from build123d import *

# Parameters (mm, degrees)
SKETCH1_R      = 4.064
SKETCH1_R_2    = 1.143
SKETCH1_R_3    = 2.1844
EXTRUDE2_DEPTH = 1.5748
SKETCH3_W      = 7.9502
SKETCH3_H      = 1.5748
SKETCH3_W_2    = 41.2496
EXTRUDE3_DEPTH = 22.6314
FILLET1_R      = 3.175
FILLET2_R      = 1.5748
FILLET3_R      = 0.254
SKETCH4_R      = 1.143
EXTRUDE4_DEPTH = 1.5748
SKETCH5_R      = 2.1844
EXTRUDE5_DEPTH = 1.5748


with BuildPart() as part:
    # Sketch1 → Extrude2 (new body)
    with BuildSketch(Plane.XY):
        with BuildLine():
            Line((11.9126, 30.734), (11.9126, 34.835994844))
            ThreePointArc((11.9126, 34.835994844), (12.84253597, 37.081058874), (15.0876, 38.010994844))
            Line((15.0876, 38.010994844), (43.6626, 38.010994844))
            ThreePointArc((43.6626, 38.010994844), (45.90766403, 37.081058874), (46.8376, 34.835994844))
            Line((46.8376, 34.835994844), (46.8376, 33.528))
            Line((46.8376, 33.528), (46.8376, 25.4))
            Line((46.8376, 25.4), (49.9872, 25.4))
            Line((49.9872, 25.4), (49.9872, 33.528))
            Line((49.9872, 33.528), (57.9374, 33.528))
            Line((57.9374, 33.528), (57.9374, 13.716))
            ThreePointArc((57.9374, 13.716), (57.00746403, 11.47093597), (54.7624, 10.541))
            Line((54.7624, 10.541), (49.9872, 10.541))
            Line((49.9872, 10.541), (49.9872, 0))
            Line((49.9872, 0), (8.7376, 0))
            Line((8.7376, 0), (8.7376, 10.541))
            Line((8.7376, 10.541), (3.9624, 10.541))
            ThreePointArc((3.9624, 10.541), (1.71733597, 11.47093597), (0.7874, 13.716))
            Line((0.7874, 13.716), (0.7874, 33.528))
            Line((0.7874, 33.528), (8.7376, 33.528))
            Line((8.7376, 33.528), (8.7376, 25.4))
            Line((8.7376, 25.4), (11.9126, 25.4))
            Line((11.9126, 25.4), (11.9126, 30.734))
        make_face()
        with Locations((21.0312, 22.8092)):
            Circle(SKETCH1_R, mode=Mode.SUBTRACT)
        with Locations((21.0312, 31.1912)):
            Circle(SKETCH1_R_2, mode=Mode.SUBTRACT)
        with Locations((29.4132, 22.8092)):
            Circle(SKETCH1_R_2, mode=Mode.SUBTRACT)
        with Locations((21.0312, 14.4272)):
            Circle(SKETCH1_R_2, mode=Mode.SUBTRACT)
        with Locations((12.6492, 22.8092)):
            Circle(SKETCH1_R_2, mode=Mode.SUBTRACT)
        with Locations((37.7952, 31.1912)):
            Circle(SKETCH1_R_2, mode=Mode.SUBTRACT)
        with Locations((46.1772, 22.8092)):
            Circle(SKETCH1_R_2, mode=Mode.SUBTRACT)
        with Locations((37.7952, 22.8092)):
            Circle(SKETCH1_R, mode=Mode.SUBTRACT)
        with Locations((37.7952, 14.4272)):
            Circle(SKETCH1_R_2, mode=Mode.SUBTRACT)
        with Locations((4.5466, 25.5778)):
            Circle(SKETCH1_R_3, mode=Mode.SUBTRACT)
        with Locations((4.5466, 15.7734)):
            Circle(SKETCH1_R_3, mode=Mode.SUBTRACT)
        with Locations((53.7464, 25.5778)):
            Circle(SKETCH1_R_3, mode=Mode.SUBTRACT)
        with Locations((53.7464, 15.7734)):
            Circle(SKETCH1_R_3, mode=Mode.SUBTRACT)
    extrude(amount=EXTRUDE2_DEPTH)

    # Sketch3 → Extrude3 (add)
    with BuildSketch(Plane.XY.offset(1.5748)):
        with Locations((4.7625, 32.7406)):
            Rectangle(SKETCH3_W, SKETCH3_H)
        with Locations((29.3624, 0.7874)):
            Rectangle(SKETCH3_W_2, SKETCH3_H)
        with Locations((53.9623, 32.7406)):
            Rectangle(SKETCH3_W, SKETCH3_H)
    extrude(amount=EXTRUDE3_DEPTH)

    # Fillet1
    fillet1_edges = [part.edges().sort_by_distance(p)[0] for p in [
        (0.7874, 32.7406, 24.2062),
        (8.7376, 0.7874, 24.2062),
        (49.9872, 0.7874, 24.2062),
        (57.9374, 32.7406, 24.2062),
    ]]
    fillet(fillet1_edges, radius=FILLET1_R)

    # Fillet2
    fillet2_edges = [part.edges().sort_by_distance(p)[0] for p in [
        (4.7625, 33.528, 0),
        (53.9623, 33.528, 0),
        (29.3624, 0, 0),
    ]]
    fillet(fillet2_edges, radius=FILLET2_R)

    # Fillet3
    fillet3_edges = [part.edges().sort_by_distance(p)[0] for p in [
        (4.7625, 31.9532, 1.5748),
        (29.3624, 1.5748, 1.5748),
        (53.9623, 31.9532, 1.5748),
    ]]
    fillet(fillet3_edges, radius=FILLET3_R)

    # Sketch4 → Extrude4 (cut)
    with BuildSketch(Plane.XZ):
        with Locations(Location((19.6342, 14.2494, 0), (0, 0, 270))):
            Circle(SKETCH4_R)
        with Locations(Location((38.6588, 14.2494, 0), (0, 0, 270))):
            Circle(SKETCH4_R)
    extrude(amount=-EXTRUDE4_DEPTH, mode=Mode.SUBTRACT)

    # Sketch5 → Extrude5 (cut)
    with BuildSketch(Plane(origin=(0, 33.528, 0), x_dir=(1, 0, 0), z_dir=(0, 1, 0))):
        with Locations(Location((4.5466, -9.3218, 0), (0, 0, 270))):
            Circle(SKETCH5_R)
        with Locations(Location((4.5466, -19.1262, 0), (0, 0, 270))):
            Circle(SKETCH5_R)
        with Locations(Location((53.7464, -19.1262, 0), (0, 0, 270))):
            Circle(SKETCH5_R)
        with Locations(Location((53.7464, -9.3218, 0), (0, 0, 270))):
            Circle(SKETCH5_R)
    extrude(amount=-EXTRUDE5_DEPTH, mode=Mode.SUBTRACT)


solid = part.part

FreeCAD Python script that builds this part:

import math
import FreeCAD as App
import Part
import Sketcher
Q = App.Units.Quantity


def edges_at(feature, points):
    """Names of the edges that pass closest to the given points."""
    edges = feature.Shape.Edges
    near = lambda p: min(range(len(edges)), key=lambda i: edges[i].distToShape(Part.Vertex(*p))[0])
    return sorted({f"Edge{near(p) + 1}" for p in points})

doc = App.newDocument("Part")
body = doc.addObject("PartDesign::Body", "Body")

sketch1 = body.newObject("Sketcher::SketchObject", "Sketch")
sketch1.AttachmentSupport = (doc.getObject("XY_Plane"), [""])
sketch1.MapMode = "FlatFace"
sketch1.addGeometry([
    Part.ArcOfCircle(Part.Circle(App.Vector(15.0876, 34.835995, 0), App.Vector(0, 0, 1), 3.175), math.radians(90), math.radians(180)),
    Part.LineSegment(App.Vector(11.9126, 34.835995, 0), App.Vector(11.9126, 25.4, 0)),
    Part.LineSegment(App.Vector(11.9126, 25.4, 0), App.Vector(8.7376, 25.4, 0)),
    Part.LineSegment(App.Vector(8.7376, 25.4, 0), App.Vector(8.7376, 33.528, 0)),
    Part.LineSegment(App.Vector(8.7376, 33.528, 0), App.Vector(0.7874, 33.528, 0)),
    Part.LineSegment(App.Vector(0.7874, 33.528, 0), App.Vector(0.7874, 13.716, 0)),
    Part.ArcOfCircle(Part.Circle(App.Vector(3.9624, 13.716, 0), App.Vector(0, 0, 1), 3.175), math.radians(-180), math.radians(-90)),
    Part.LineSegment(App.Vector(3.9624, 10.541, 0), App.Vector(8.7376, 10.541, 0)),
    Part.LineSegment(App.Vector(8.7376, 10.541, 0), App.Vector(8.7376, 0, 0)),
    Part.LineSegment(App.Vector(8.7376, 0, 0), App.Vector(49.9872, 0, 0)),
    Part.LineSegment(App.Vector(49.9872, 0, 0), App.Vector(49.9872, 10.541, 0)),
    Part.LineSegment(App.Vector(49.9872, 10.541, 0), App.Vector(54.7624, 10.541, 0)),
    Part.ArcOfCircle(Part.Circle(App.Vector(54.7624, 13.716, 0), App.Vector(0, 0, 1), 3.175), math.radians(-90), math.radians(0)),
    Part.LineSegment(App.Vector(57.9374, 13.716, 0), App.Vector(57.9374, 33.528, 0)),
    Part.LineSegment(App.Vector(57.9374, 33.528, 0), App.Vector(49.9872, 33.528, 0)),
    Part.LineSegment(App.Vector(49.9872, 33.528, 0), App.Vector(49.9872, 25.4, 0)),
    Part.LineSegment(App.Vector(49.9872, 25.4, 0), App.Vector(46.8376, 25.4, 0)),
    Part.LineSegment(App.Vector(46.8376, 25.4, 0), App.Vector(46.8376, 34.835995, 0)),
    Part.ArcOfCircle(Part.Circle(App.Vector(43.6626, 34.835995, 0), App.Vector(0, 0, 1), 3.175), math.radians(0), math.radians(90)),
    Part.LineSegment(App.Vector(43.6626, 38.010995, 0), App.Vector(15.0876, 38.010995, 0)),
    Part.Circle(App.Vector(53.7464, 15.7734, 0), App.Vector(0, 0, 1), 2.1844),
    Part.Circle(App.Vector(37.7952, 14.4272, 0), App.Vector(0, 0, 1), 1.143),
    Part.Circle(App.Vector(21.0312, 14.4272, 0), App.Vector(0, 0, 1), 1.143),
    Part.Circle(App.Vector(4.5466, 15.7734, 0), App.Vector(0, 0, 1), 2.1844),
    Part.Circle(App.Vector(46.1772, 22.8092, 0), App.Vector(0, 0, 1), 1.143),
    Part.Circle(App.Vector(53.7464, 25.5778, 0), App.Vector(0, 0, 1), 2.1844),
    Part.Circle(App.Vector(37.7952, 22.8092, 0), App.Vector(0, 0, 1), 4.064),
    Part.Circle(App.Vector(29.4132, 22.8092, 0), App.Vector(0, 0, 1), 1.143),
    Part.Circle(App.Vector(37.7952, 31.1912, 0), App.Vector(0, 0, 1), 1.143),
    Part.Circle(App.Vector(21.0312, 22.8092, 0), App.Vector(0, 0, 1), 4.064),
    Part.Circle(App.Vector(12.6492, 22.8092, 0), App.Vector(0, 0, 1), 1.143),
    Part.Circle(App.Vector(4.5466, 25.5778, 0), App.Vector(0, 0, 1), 2.1844),
    Part.Circle(App.Vector(21.0312, 31.1912, 0), App.Vector(0, 0, 1), 1.143),
], False)
sketch1.addConstraint([
    Sketcher.Constraint("Tangent", 0, 2, 1, 1),
    Sketcher.Constraint("Coincident", 1, 2, 2, 1),
    Sketcher.Constraint("Coincident", 2, 2, 3, 1),
    Sketcher.Constraint("Coincident", 3, 2, 4, 1),
    Sketcher.Constraint("Coincident", 4, 2, 5, 1),
    Sketcher.Constraint("Tangent", 5, 2, 6, 1),
    Sketcher.Constraint("Tangent", 6, 2, 7, 1),
    Sketcher.Constraint("Coincident", 7, 2, 8, 1),
    Sketcher.Constraint("Coincident", 8, 2, 9, 1),
    Sketcher.Constraint("Coincident", 9, 2, 10, 1),
    Sketcher.Constraint("Coincident", 10, 2, 11, 1),
    Sketcher.Constraint("Tangent", 11, 2, 12, 1),
    Sketcher.Constraint("Tangent", 12, 2, 13, 1),
    Sketcher.Constraint("Coincident", 13, 2, 14, 1),
    Sketcher.Constraint("Coincident", 14, 2, 15, 1),
    Sketcher.Constraint("Coincident", 15, 2, 16, 1),
    Sketcher.Constraint("Coincident", 16, 2, 17, 1),
    Sketcher.Constraint("Tangent", 17, 2, 18, 1),
    Sketcher.Constraint("Tangent", 18, 2, 19, 1),
    Sketcher.Constraint("Tangent", 19, 2, 0, 1),
    Sketcher.Constraint("Vertical", 1),
    Sketcher.Constraint("Horizontal", 2),
    Sketcher.Constraint("Vertical", 3),
    Sketcher.Constraint("Horizontal", 4),
    Sketcher.Constraint("Vertical", 5),
    Sketcher.Constraint("Horizontal", 7),
    Sketcher.Constraint("Vertical", 8),
    Sketcher.Constraint("Horizontal", 9),
    Sketcher.Constraint("Vertical", 10),
    Sketcher.Constraint("Horizontal", 11),
    Sketcher.Constraint("Vertical", 13),
    Sketcher.Constraint("Horizontal", 14),
    Sketcher.Constraint("Vertical", 15),
    Sketcher.Constraint("Horizontal", 16),
    Sketcher.Constraint("Vertical", 17),
    Sketcher.Constraint("Horizontal", 19),
    Sketcher.Constraint("Equal", 0, 6),
    Sketcher.Constraint("Equal", 6, 12),
    Sketcher.Constraint("Equal", 12, 18),
    Sketcher.Constraint("Equal", 21, 22),
    Sketcher.Constraint("Equal", 20, 23),
    Sketcher.Constraint("Equal", 22, 24),
    Sketcher.Constraint("Equal", 23, 25),
    Sketcher.Constraint("Equal", 24, 27),
    Sketcher.Constraint("Equal", 27, 28),
    Sketcher.Constraint("Equal", 26, 29),
    Sketcher.Constraint("Equal", 28, 30),
    Sketcher.Constraint("Equal", 25, 31),
    Sketcher.Constraint("Equal", 30, 32),
    Sketcher.Constraint("PointOnObject", 8, 2, -1),
    Sketcher.Constraint("Horizontal", 6, 3, 12, 3),
    Sketcher.Constraint("Horizontal", 21, 3, 22, 3),
    Sketcher.Constraint("Horizontal", 20, 3, 23, 3),
    Sketcher.Constraint("Horizontal", 24, 3, 26, 3),
    Sketcher.Constraint("Horizontal", 26, 3, 27, 3),
    Sketcher.Constraint("Horizontal", 27, 3, 29, 3),
    Sketcher.Constraint("Horizontal", 29, 3, 30, 3),
    Sketcher.Constraint("Horizontal", 25, 3, 31, 3),
    Sketcher.Constraint("Horizontal", 28, 3, 32, 3),
    Sketcher.Constraint("Horizontal", 4, 2, 13, 2),
    Sketcher.Constraint("Horizontal", 2, 2, 15, 2),
    Sketcher.Constraint("Vertical", 20, 3, 25, 3),
    Sketcher.Constraint("Vertical", 21, 3, 26, 3),
    Sketcher.Constraint("Vertical", 26, 3, 28, 3),
    Sketcher.Constraint("Vertical", 22, 3, 29, 3),
    Sketcher.Constraint("Vertical", 23, 3, 31, 3),
    Sketcher.Constraint("Vertical", 29, 3, 32, 3),
    Sketcher.Constraint("Vertical", 3, 2, 7, 2),
    Sketcher.Constraint("Vertical", 10, 2, 14, 2),
    Sketcher.Constraint("Equal", 7, 11),
    Sketcher.Constraint("Diameter", 21, Q("0.09 in")),
    Sketcher.Constraint("Diameter", 26, Q("0.32 in")),
    Sketcher.Constraint("Diameter", 20, Q("0.172 in")),
    Sketcher.Constraint("DistanceY", -1, 1, 1, 2, Q("1 in")),
    Sketcher.Constraint("Radius", 0, Q("0.125 in")),
    Sketcher.Constraint("DistanceX", 6, 3, 12, 3, Q("2 in")),
    Sketcher.Constraint("DistanceY", 3, 1, 3, 2, Q("0.32 in")),
    Sketcher.Constraint("DistanceY", 5, 2, 5, 1, Q("0.78 in")),
    Sketcher.Constraint("DistanceX", 2, 2, 2, 1, Q("0.125 in")),
    Sketcher.Constraint("DistanceX", 4, 2, 4, 1, Q("0.313 in")),
    Sketcher.Constraint("DistanceX", 16, 2, 16, 1, Q("0.124 in")),
    Sketcher.Constraint("DistanceX", 20, 3, 12, 3, Q("0.04 in")),
    Sketcher.Constraint("DistanceX", 22, 3, 21, 3, Q("0.66 in")),
    Sketcher.Constraint("DistanceX", 23, 3, 18, 3, Q("1.54 in")),
    Sketcher.Constraint("DistanceX", 21, 3, 24, 3, Q("0.33 in")),
    Sketcher.Constraint("DistanceY", 21, 3, 24, 3, Q("0.33 in")),
    Sketcher.Constraint("DistanceX", 27, 3, 26, 3, Q("0.33 in")),
    Sketcher.Constraint("DistanceY", 26, 3, 28, 3, Q("0.33 in")),
    Sketcher.Constraint("DistanceX", 30, 3, 29, 3, Q("0.33 in")),
    Sketcher.Constraint("DistanceX", 21, 3, 9, 2, Q("0.48 in")),
    Sketcher.Constraint("DistanceX", -1, 1, 0, 3, Q("0.594 in")),
    Sketcher.Constraint("DistanceY", -1, 1, 20, 3, Q("0.621 in")),
    Sketcher.Constraint("DistanceY", -1, 1, 21, 3, Q("0.568 in")),
    Sketcher.Constraint("DistanceY", -1, 1, 25, 3, Q("1.007 in")),
    Sketcher.Constraint("DistanceY", 1, 2, 1, 1, Q("9.435995 mm")),
])
pad1 = body.newObject("PartDesign::Pad", "Pad")
pad1.Profile = sketch1
pad1.Length = Q("0.062 in")

sketch2 = body.newObject("Sketcher::SketchObject", "Sketch001")
sketch2.AttachmentSupport = (doc.getObject("XY_Plane"), [""])
sketch2.MapMode = "FlatFace"
sketch2.AttachmentOffset = App.Placement(App.Vector(0, 0, 0.062 * 25.4), App.Rotation())
sketch2.addGeometry([
    Part.LineSegment(App.Vector(0.7874, 33.528, 0), App.Vector(0.7874, 31.9532, 0)),
    Part.LineSegment(App.Vector(0.7874, 31.9532, 0), App.Vector(8.7376, 31.9532, 0)),
    Part.LineSegment(App.Vector(8.7376, 31.9532, 0), App.Vector(8.7376, 33.528, 0)),
    Part.LineSegment(App.Vector(8.7376, 33.528, 0), App.Vector(0.7874, 33.528, 0)),
    Part.LineSegment(App.Vector(8.7376, 1.5748, 0), App.Vector(8.7376, 0, 0)),
    Part.LineSegment(App.Vector(8.7376, 0, 0), App.Vector(49.9872, 0, 0)),
    Part.LineSegment(App.Vector(49.9872, 0, 0), App.Vector(49.9872, 1.5748, 0)),
    Part.LineSegment(App.Vector(49.9872, 1.5748, 0), App.Vector(8.7376, 1.5748, 0)),
    Part.LineSegment(App.Vector(49.9872, 33.528, 0), App.Vector(49.9872, 31.9532, 0)),
    Part.LineSegment(App.Vector(49.9872, 31.9532, 0), App.Vector(57.9374, 31.9532, 0)),
    Part.LineSegment(App.Vector(57.9374, 31.9532, 0), App.Vector(57.9374, 33.528, 0)),
    Part.LineSegment(App.Vector(57.9374, 33.528, 0), App.Vector(49.9872, 33.528, 0)),
], False)
sketch2.addConstraint([
    Sketcher.Constraint("Coincident", 0, 2, 1, 1),
    Sketcher.Constraint("Coincident", 1, 2, 2, 1),
    Sketcher.Constraint("Coincident", 2, 2, 3, 1),
    Sketcher.Constraint("Coincident", 3, 2, 0, 1),
    Sketcher.Constraint("Coincident", 4, 2, 5, 1),
    Sketcher.Constraint("Coincident", 5, 2, 6, 1),
    Sketcher.Constraint("Coincident", 6, 2, 7, 1),
    Sketcher.Constraint("Coincident", 7, 2, 4, 1),
    Sketcher.Constraint("Coincident", 8, 2, 9, 1),
    Sketcher.Constraint("Coincident", 9, 2, 10, 1),
    Sketcher.Constraint("Coincident", 10, 2, 11, 1),
    Sketcher.Constraint("Coincident", 11, 2, 8, 1),
    Sketcher.Constraint("Vertical", 0),
    Sketcher.Constraint("Horizontal", 1),
    Sketcher.Constraint("Vertical", 2),
    Sketcher.Constraint("Horizontal", 3),
    Sketcher.Constraint("Vertical", 4),
    Sketcher.Constraint("Horizontal", 5),
    Sketcher.Constraint("Vertical", 6),
    Sketcher.Constraint("Horizontal", 7),
    Sketcher.Constraint("Vertical", 8),
    Sketcher.Constraint("Horizontal", 9),
    Sketcher.Constraint("Vertical", 10),
    Sketcher.Constraint("Horizontal", 11),
    Sketcher.Constraint("PointOnObject", 4, 2, -1),
    Sketcher.Constraint("Horizontal", 1, 2, 8, 2),
    Sketcher.Constraint("Horizontal", 3, 2, 10, 2),
    Sketcher.Constraint("Vertical", 2, 2, 4, 2),
    Sketcher.Constraint("Vertical", 6, 2, 8, 2),
    Sketcher.Constraint("Equal", 3, 9),
    Sketcher.Constraint("Equal", 2, 4),
    Sketcher.Constraint("DistanceX", 1, 1, 1, 2, Q("0.313 in")),
    Sketcher.Constraint("DistanceX", 5, 1, 5, 2, Q("1.624 in")),
    Sketcher.Constraint("DistanceY", 0, 2, 0, 1, Q("0.062 in")),
    Sketcher.Constraint("DistanceY", -1, 1, 2, 2, Q("1.32 in")),
    Sketcher.Constraint("DistanceX", -1, 1, 0, 2, Q("0.031 in")),
])
pad2 = body.newObject("PartDesign::Pad", "Pad001")
pad2.Profile = sketch2
pad2.Length = Q("0.891 in")
doc.recompute()

fillet = body.newObject("PartDesign::Fillet", "Fillet")
fillet.Base = (pad2, edges_at(pad2, [
    (0.787, 32.741, 24.206),
    (8.738, 0.787, 24.206),
    (49.987, 0.787, 24.206),
    (57.937, 32.741, 24.206),
]))
fillet.Radius = Q("0.125 in")
doc.recompute()

fillet2 = body.newObject("PartDesign::Fillet", "Fillet001")
fillet2.Base = (fillet, edges_at(fillet, [(4.763, 33.528, 0), (53.962, 33.528, 0), (29.362, 0, 0)]))
fillet2.Radius = Q("0.062 in")
doc.recompute()

fillet3 = body.newObject("PartDesign::Fillet", "Fillet002")
fillet3.Base = (fillet2, edges_at(fillet2, [(4.763, 31.953, 1.575), (29.362, 1.575, 1.575), (53.962, 31.953, 1.575)]))
fillet3.Radius = Q("0.01 in")

sketch3 = body.newObject("Sketcher::SketchObject", "Sketch002")
sketch3.AttachmentSupport = (doc.getObject("XZ_Plane"), [""])
sketch3.MapMode = "FlatFace"
sketch3.addGeometry([
    Part.Circle(App.Vector(19.6342, 14.2494, 0), App.Vector(0, 0, 1), 1.143),
    Part.Circle(App.Vector(38.6588, 14.2494, 0), App.Vector(0, 0, 1), 1.143),
], False)
sketch3.addConstraint([
    Sketcher.Constraint("Equal", 0, 1),
    Sketcher.Constraint("Horizontal", 0, 3, 1, 3),
    Sketcher.Constraint("Diameter", 0, Q("0.09 in")),
    Sketcher.Constraint("DistanceX", -1, 1, 0, 3, Q("0.773 in")),
    Sketcher.Constraint("DistanceY", -1, 1, 0, 3, Q("0.561 in")),
    Sketcher.Constraint("DistanceX", -1, 1, 1, 3, Q("1.522 in")),
])
pocket1 = body.newObject("PartDesign::Pocket", "Pocket")
pocket1.Profile = sketch3
pocket1.Length = Q("0.062 in")

sketch4 = body.newObject("Sketcher::SketchObject", "Sketch003")
sketch4.AttachmentSupport = (doc.getObject("XZ_Plane"), [""])
sketch4.MapMode = "FlatFace"
sketch4.AttachmentOffset = App.Placement(App.Vector(0, 0, -1.32 * 25.4), App.Rotation())
sketch4.addGeometry([
    Part.Circle(App.Vector(4.5466, 9.3218, 0), App.Vector(0, 0, 1), 2.1844),
    Part.Circle(App.Vector(4.5466, 19.1262, 0), App.Vector(0, 0, 1), 2.1844),
    Part.Circle(App.Vector(53.7464, 19.1262, 0), App.Vector(0, 0, 1), 2.1844),
    Part.Circle(App.Vector(53.7464, 9.3218, 0), App.Vector(0, 0, 1), 2.1844),
], False)
sketch4.addConstraint([
    Sketcher.Constraint("Equal", 0, 1),
    Sketcher.Constraint("Equal", 1, 2),
    Sketcher.Constraint("Equal", 2, 3),
    Sketcher.Constraint("Horizontal", 1, 3, 2, 3),
    Sketcher.Constraint("Horizontal", 0, 3, 3, 3),
    Sketcher.Constraint("Vertical", 0, 3, 1, 3),
    Sketcher.Constraint("Vertical", 2, 3, 3, 3),
    Sketcher.Constraint("Diameter", 0, Q("0.172 in")),
    Sketcher.Constraint("DistanceX", -1, 1, 0, 3, Q("0.179 in")),
    Sketcher.Constraint("DistanceY", -1, 1, 0, 3, Q("0.367 in")),
    Sketcher.Constraint("DistanceY", -1, 1, 1, 3, Q("0.753 in")),
    Sketcher.Constraint("DistanceX", -1, 1, 2, 3, Q("2.116 in")),
])
pocket2 = body.newObject("PartDesign::Pocket", "Pocket001")
pocket2.Profile = sketch4
pocket2.Length = Q("0.062 in")
pocket2.Reversed = True

doc.recompute()
